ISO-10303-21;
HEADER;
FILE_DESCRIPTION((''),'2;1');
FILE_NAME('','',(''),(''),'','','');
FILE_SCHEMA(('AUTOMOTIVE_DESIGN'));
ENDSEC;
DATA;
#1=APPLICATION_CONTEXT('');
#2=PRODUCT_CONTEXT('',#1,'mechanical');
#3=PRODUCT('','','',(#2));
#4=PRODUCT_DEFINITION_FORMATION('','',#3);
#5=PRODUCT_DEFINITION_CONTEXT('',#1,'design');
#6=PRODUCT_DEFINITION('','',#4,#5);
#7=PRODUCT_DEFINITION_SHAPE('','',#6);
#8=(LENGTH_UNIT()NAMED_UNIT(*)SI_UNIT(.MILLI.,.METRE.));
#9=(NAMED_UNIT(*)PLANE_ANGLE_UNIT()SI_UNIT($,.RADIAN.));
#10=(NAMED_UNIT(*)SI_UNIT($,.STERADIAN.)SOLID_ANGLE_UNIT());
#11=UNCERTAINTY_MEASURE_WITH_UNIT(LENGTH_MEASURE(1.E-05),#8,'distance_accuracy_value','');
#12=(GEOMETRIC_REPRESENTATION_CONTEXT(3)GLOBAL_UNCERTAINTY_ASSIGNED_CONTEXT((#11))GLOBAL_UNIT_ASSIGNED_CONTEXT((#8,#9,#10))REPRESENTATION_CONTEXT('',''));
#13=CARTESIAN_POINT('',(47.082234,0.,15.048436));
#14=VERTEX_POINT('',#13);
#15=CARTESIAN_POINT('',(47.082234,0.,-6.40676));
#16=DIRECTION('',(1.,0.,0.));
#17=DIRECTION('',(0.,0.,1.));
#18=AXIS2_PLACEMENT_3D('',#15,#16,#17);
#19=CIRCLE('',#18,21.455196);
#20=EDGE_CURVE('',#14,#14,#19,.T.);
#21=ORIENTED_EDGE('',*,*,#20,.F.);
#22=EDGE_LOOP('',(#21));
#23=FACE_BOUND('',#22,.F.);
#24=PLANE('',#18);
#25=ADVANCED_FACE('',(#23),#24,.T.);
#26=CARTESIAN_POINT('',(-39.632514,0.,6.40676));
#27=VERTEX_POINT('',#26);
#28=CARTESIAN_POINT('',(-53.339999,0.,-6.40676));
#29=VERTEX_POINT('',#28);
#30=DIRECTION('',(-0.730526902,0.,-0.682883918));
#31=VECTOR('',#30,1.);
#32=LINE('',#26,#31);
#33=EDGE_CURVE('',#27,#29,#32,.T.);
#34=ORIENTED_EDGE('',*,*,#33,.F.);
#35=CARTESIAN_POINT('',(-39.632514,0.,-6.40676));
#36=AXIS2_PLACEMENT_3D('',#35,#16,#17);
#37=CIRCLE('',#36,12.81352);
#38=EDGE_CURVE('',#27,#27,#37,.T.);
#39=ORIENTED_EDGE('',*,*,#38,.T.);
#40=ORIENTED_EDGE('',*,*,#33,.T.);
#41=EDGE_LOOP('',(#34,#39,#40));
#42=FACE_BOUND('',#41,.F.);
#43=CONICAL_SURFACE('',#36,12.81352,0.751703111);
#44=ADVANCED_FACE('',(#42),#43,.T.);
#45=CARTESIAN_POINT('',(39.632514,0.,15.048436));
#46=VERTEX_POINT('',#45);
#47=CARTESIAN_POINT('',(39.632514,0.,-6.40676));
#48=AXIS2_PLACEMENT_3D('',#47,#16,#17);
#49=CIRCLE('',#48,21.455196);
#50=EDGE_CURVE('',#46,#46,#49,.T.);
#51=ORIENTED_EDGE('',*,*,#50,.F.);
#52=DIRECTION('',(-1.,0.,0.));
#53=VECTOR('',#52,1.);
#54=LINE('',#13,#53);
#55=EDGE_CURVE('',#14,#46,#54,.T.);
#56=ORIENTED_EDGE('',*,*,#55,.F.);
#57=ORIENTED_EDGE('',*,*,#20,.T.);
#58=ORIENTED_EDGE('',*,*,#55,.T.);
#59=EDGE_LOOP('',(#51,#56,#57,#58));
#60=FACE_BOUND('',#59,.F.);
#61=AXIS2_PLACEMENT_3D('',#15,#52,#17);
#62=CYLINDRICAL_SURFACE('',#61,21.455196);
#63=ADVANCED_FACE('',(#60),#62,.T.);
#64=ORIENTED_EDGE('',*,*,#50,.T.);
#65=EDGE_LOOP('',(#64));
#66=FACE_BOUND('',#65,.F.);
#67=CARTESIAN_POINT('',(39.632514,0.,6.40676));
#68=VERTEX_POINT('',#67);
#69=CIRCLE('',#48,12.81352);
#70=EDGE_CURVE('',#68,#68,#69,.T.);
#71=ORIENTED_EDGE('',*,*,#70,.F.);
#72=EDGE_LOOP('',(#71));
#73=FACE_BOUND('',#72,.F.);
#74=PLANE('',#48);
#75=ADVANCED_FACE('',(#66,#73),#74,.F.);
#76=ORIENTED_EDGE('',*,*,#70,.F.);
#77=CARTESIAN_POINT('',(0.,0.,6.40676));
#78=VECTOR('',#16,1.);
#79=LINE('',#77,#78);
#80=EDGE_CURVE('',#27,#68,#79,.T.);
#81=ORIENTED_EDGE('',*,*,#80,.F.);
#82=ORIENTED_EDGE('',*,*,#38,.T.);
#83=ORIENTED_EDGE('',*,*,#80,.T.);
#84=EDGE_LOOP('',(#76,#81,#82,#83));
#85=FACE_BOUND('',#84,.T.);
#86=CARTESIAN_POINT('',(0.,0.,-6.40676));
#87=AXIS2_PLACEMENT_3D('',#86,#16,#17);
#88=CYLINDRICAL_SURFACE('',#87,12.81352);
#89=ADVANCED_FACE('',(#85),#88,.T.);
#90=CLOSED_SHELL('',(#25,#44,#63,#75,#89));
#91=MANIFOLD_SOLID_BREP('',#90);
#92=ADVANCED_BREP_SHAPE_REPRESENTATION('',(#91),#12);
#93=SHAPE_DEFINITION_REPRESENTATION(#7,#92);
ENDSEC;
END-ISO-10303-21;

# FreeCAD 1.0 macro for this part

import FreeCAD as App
import Part
import Sketcher
Q = App.Units.Quantity


def add_polygon(sketch, points):
    """Adds a closed chain of lines whose ends are joined by coincident constraints."""
    first, n = sketch.GeometryCount, len(points)
    for a, b in zip(points, points[1:] + points[:1]):
        sketch.addGeometry(Part.LineSegment(App.Vector(*a, 0), App.Vector(*b, 0)), False)
    for i in range(n):
        sketch.addConstraint(Sketcher.Constraint("Coincident", first + i, 2, first + (i + 1) % n, 1))

doc = App.newDocument("Part")
body = doc.addObject("PartDesign::Body", "Body")

sketch1 = body.newObject("Sketcher::SketchObject", "Sketch")
sketch1.AttachmentSupport = (doc.getObject("XZ_Plane"), [""])
sketch1.MapMode = "FlatFace"
add_polygon(sketch1, [(40, 6), (-40, 6), (-53, -6), (47, -6), (47, 15), (40, 15)])
sketch1.addGeometry(Part.LineSegment(App.Vector(-53, -6, 0), App.Vector(47, -6, 0)), True)
sketch1.addConstraint([
    Sketcher.Constraint("Horizontal", 0),
    Sketcher.Constraint("Horizontal", 2),
    Sketcher.Constraint("Vertical", 3),
    Sketcher.Constraint("Horizontal", 4),
    Sketcher.Constraint("Vertical", 5),
    Sketcher.Constraint("Horizontal", 6),
    Sketcher.Constraint("Coincident", 6, 1, 1, 2),
    Sketcher.Constraint("Vertical", 3, 2, 6, 2),
    Sketcher.Constraint("DistanceX", 1, 2, -1, 1, Q("53.339999 mm")),
    Sketcher.Constraint("DistanceX", 0, 2, 0, 1, Q("79.265028 mm")),
    Sketcher.Constraint("DistanceX", 4, 2, 4, 1, Q("7.44972 mm")),
    Sketcher.Constraint("DistanceX", 2, 1, 2, 2, Q("100.422233 mm")),
    Sketcher.Constraint("DistanceY", 3, 1, 3, 2, Q("21.455196 mm")),
    Sketcher.Constraint("DistanceY", 5, 2, 5, 1, Q("8.641676 mm")),
    Sketcher.Constraint("DistanceY", -1, 1, 0, 2, Q("6.40676 mm")),
])
revolution = body.newObject("PartDesign::Revolution", "Revolution")
revolution.Profile = sketch1
revolution.ReferenceAxis = (sketch1, ["Axis0"])
revolution.Angle = 360

doc.recompute()
